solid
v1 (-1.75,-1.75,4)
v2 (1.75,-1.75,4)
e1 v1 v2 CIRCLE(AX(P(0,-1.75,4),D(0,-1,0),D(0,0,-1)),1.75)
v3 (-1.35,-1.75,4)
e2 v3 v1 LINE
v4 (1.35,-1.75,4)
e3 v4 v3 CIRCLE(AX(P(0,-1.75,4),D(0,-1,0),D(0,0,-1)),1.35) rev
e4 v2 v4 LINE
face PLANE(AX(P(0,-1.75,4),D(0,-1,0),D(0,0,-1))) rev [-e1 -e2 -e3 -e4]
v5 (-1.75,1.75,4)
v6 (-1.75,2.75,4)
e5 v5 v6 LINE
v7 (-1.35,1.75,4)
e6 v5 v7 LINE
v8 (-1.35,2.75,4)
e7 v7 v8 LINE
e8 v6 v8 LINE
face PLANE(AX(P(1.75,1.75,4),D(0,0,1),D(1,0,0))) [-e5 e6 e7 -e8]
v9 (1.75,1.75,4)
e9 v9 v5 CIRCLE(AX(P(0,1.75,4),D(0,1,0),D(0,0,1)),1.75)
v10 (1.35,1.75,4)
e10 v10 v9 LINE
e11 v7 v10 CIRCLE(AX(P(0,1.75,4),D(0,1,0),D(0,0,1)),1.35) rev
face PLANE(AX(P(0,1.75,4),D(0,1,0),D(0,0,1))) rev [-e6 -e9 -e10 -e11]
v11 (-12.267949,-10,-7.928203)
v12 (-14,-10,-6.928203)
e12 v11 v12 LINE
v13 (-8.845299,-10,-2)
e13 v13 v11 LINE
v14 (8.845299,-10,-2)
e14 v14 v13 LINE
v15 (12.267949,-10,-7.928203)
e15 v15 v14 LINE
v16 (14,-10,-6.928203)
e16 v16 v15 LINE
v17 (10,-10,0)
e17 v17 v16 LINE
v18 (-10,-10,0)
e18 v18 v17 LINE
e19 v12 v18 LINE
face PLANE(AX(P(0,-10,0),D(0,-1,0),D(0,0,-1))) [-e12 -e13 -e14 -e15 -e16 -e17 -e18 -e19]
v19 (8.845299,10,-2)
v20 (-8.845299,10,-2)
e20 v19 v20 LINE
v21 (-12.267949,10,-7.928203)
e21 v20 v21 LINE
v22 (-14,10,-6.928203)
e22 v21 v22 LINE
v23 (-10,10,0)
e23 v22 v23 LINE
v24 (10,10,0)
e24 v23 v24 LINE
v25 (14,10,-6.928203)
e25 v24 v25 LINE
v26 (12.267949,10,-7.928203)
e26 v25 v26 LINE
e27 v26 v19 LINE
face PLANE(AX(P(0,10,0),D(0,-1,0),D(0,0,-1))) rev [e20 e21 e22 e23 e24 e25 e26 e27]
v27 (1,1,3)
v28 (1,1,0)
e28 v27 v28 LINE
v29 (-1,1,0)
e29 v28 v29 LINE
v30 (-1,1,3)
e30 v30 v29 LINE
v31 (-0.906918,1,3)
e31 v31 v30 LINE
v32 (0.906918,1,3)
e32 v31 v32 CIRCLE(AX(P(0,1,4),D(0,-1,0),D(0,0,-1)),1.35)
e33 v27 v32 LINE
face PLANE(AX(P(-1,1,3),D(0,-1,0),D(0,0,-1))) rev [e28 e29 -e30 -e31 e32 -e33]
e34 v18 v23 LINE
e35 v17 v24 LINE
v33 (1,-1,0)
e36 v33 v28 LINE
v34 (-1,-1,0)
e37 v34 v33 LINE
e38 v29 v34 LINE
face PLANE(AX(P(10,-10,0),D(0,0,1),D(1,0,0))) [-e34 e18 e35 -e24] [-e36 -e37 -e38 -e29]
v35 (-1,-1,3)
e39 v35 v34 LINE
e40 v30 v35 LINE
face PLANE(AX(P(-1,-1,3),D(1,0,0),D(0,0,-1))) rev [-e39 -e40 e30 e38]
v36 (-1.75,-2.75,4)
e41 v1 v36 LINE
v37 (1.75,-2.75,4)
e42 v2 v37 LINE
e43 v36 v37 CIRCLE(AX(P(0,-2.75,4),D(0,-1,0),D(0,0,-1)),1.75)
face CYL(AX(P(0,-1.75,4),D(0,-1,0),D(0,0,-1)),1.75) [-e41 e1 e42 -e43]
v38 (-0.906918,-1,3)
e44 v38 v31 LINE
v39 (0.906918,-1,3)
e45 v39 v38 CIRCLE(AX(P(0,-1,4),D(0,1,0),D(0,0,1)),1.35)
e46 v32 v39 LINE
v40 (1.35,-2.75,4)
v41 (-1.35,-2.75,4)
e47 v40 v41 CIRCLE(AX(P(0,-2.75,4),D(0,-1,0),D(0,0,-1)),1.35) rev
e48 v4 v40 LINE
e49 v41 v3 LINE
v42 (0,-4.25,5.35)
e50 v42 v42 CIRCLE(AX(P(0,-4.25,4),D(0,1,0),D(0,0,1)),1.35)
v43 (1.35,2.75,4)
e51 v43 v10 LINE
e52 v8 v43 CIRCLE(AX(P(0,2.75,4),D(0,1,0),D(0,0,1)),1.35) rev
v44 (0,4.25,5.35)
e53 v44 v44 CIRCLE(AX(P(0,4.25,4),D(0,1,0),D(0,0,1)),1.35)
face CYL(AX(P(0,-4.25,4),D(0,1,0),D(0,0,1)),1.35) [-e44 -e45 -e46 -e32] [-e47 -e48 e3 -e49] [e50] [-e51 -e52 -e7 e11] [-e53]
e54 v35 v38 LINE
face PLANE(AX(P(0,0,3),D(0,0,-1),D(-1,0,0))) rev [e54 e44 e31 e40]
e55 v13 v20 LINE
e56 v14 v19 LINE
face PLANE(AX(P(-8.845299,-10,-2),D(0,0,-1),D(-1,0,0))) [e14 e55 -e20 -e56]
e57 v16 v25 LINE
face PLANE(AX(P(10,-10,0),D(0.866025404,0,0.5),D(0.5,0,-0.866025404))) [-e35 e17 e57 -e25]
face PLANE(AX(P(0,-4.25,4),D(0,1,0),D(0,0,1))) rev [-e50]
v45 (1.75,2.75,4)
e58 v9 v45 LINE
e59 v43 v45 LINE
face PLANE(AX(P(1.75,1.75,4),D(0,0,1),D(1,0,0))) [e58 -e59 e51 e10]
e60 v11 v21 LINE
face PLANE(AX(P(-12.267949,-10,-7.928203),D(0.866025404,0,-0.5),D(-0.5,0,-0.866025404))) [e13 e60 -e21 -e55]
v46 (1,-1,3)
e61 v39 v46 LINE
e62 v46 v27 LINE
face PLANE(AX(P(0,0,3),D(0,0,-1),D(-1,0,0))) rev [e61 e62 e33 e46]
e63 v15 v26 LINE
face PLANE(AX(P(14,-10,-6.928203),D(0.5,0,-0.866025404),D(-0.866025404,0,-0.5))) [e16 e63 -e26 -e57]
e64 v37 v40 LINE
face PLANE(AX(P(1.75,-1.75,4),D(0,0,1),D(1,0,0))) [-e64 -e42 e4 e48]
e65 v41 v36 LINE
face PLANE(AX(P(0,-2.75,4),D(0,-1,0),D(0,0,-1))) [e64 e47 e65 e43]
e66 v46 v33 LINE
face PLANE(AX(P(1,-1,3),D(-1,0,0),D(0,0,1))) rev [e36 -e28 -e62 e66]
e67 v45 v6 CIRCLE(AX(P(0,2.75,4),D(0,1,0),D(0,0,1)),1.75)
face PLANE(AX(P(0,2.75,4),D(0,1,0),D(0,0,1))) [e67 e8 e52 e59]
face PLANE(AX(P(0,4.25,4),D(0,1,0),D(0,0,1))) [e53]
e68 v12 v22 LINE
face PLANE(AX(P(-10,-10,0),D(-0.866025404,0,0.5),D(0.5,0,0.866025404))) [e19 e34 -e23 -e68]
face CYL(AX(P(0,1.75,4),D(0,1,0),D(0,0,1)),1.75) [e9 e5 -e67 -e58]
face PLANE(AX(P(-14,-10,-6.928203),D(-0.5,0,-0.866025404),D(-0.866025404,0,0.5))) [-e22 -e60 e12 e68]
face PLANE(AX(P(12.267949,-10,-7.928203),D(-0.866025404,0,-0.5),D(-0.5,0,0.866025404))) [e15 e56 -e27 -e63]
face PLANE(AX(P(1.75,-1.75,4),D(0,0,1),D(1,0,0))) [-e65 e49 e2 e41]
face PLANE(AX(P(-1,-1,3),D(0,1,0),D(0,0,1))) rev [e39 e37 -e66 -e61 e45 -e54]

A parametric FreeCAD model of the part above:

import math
import FreeCAD as App
import Part
import Sketcher

V = App.Vector
Q = App.Units.Quantity

doc = App.newDocument("Part")
params = doc.addObject("Spreadsheet::Sheet", "Params")
for row, (alias, value) in enumerate([
    ("sketch1_width", "2 mm"),
    ("pad1_length", "3 mm"),
    ("sketch2_diameter", "2.7 mm"),
    ("pad2_length", "3.25 mm"),
    ("pad2_length2", "5.25 mm"),
    ("sketch3_radius", "1.75 mm"),
    ("pad3_length", "1 mm"),
    ("sketch4_radius", "1.75 mm"),
    ("pad4_length", "1 mm"),
    ("sketch5_width", "20 mm"),
    ("sketch5_length", "8 mm"),
    ("sketch5_length2", "2 mm"),
    ("pad5_length", "10 mm"),
    ("pad5_length2", "10 mm"),
], start=1):
    params.set(f"A{row}", alias)
    params.set(f"B{row}", "=" + value)
    params.setAlias(f"B{row}", alias)

body = doc.addObject("PartDesign::Body", "Body")

# Sketch on XY plane
sketch1 = body.newObject("Sketcher::SketchObject", "Sketch")
sketch1.AttachmentSupport = (doc.getObject("XY_Plane"), [""])
sketch1.MapMode = "FlatFace"
sketch1.addGeometry(Part.LineSegment(V(-1, 1, 0), V(-1, -1, 0)), False)
sketch1.addGeometry(Part.LineSegment(V(-1, -1, 0), V(1, -1, 0)), False)
sketch1.addGeometry(Part.LineSegment(V(1, -1, 0), V(1, 1, 0)), False)
sketch1.addGeometry(Part.LineSegment(V(1, 1, 0), V(-1, 1, 0)), False)
sketch1.addConstraint(Sketcher.Constraint("Coincident", 0, 2, 1, 1))
sketch1.addConstraint(Sketcher.Constraint("Coincident", 1, 2, 2, 1))
sketch1.addConstraint(Sketcher.Constraint("Coincident", 2, 2, 3, 1))
sketch1.addConstraint(Sketcher.Constraint("Coincident", 3, 2, 0, 1))
sketch1.addConstraint(Sketcher.Constraint("Vertical", 0))
sketch1.addConstraint(Sketcher.Constraint("Horizontal", 1))
sketch1.addConstraint(Sketcher.Constraint("Vertical", 2))
sketch1.addConstraint(Sketcher.Constraint("Horizontal", 3))
sketch1.addConstraint(Sketcher.Constraint("Symmetric", 0, 2, 2, 2, -1, 1))
sketch1.addConstraint(Sketcher.Constraint("Equal", 3, 0))
sketch1.addConstraint(Sketcher.Constraint("DistanceX", 1, 1, 1, 2, Q("2 mm")))
sketch1.setExpression("Constraints[10]", "Params.sketch1_width")
pad1 = body.newObject("PartDesign::Pad", "Pad")
pad1.Profile = sketch1
pad1.setExpression("Length", "Params.pad1_length")

# Sketch on XZ plane
sketch2 = body.newObject("Sketcher::SketchObject", "Sketch001")
sketch2.AttachmentSupport = (doc.getObject("XZ_Plane"), [""])
sketch2.MapMode = "FlatFace"
sketch2.AttachmentOffset = App.Placement(V(0, 0, -1), App.Rotation())
sketch2.addGeometry(Part.Circle(V(0, 4, 0), V(0, 0, 1), 1.4), False)
sketch2.addConstraint(Sketcher.Constraint("PointOnObject", 0, 3, -2))
sketch2.addConstraint(Sketcher.Constraint("Diameter", 0, Q("2.7 mm")))
sketch2.addConstraint(Sketcher.Constraint("DistanceY", -1, 1, 0, 3, Q("4 mm")))
sketch2.setExpression("Constraints[1]", "Params.sketch2_diameter")
pad2 = body.newObject("PartDesign::Pad", "Pad001")
pad2.Profile = sketch2
pad2.Type = "TwoLengths"
pad2.setExpression("Length", "Params.pad2_length")
pad2.setExpression("Length2", "Params.pad2_length2")
pad2.Reversed = True

# Sketch on XZ plane
sketch3 = body.newObject("Sketcher::SketchObject", "Sketch002")
sketch3.AttachmentSupport = (doc.getObject("XZ_Plane"), [""])
sketch3.MapMode = "FlatFace"
sketch3.AttachmentOffset = App.Placement(V(0, 0, 2.75), App.Rotation())
sketch3.addGeometry(Part.LineSegment(V(1.8, 4, 0), V(-1.8, 4, 0)), False)
sketch3.addGeometry(Part.ArcOfCircle(Part.Circle(V(0, 4, 0), V(0, 0, 1), 1.8), math.radians(180), math.radians(360)), False)
sketch3.addConstraint(Sketcher.Constraint("Coincident", 0, 1, 1, 2))
sketch3.addConstraint(Sketcher.Constraint("Coincident", 1, 1, 0, 2))
sketch3.addConstraint(Sketcher.Constraint("Horizontal", 0))
sketch3.addConstraint(Sketcher.Constraint("PointOnObject", 1, 3, -2))
sketch3.addConstraint(Sketcher.Constraint("Horizontal", 1, 3, 0, 1))
sketch3.addConstraint(Sketcher.Constraint("Radius", 1, Q("1.75 mm")))
sketch3.addConstraint(Sketcher.Constraint("DistanceY", -1, 1, 1, 3, Q("4 mm")))
sketch3.setExpression("Constraints[5]", "Params.sketch3_radius")
pad3 = body.newObject("PartDesign::Pad", "Pad002")
pad3.Profile = sketch3
pad3.setExpression("Length", "Params.pad3_length")
pad3.Reversed = True

# Sketch on XZ plane
sketch4 = body.newObject("Sketcher::SketchObject", "Sketch003")
sketch4.AttachmentSupport = (doc.getObject("XZ_Plane"), [""])
sketch4.MapMode = "FlatFace"
sketch4.AttachmentOffset = App.Placement(V(0, 0, -1.75), App.Rotation())
sketch4.addGeometry(Part.LineSegment(V(-1.8, 4, 0), V(1.8, 4, 0)), False)
sketch4.addGeometry(Part.ArcOfCircle(Part.Circle(V(0, 4, 0), V(0, 0, 1), 1.8), math.radians(180), math.radians(360)), False)
sketch4.addConstraint(Sketcher.Constraint("Coincident", 0, 1, 1, 1))
sketch4.addConstraint(Sketcher.Constraint("Coincident", 1, 2, 0, 2))
sketch4.addConstraint(Sketcher.Constraint("Horizontal", 0))
sketch4.addConstraint(Sketcher.Constraint("PointOnObject", 1, 3, -2))
sketch4.addConstraint(Sketcher.Constraint("Horizontal", 1, 3, 0, 1))
sketch4.addConstraint(Sketcher.Constraint("Radius", 1, Q("1.75 mm")))
sketch4.addConstraint(Sketcher.Constraint("DistanceY", -1, 1, 1, 3, Q("4 mm")))
sketch4.setExpression("Constraints[5]", "Params.sketch4_radius")
pad4 = body.newObject("PartDesign::Pad", "Pad003")
pad4.Profile = sketch4
pad4.setExpression("Length", "Params.pad4_length")
pad4.Reversed = True

# Sketch on XZ plane
sketch5 = body.newObject("Sketcher::SketchObject", "Sketch004")
sketch5.AttachmentSupport = (doc.getObject("XZ_Plane"), [""])
sketch5.MapMode = "FlatFace"
sketch5.addGeometry(Part.LineSegment(V(-10, 0, 0), V(10, 0, 0)), False)
sketch5.addGeometry(Part.LineSegment(V(10, 0, 0), V(14, -6.9, 0)), False)
sketch5.addGeometry(Part.LineSegment(V(14, -6.9, 0), V(12.3, -7.9, 0)), False)
sketch5.addGeometry(Part.LineSegment(V(12.3, -7.9, 0), V(8.8, -2, 0)), False)
sketch5.addGeometry(Part.LineSegment(V(8.8, -2, 0), V(-8.8, -2, 0)), False)
sketch5.addGeometry(Part.LineSegment(V(-8.8, -2, 0), V(-12.3, -7.9, 0)), False)
sketch5.addGeometry(Part.LineSegment(V(-12.3, -7.9, 0), V(-14, -6.9, 0)), False)
sketch5.addGeometry(Part.LineSegment(V(-14, -6.9, 0), V(-10, 0, 0)), False)
sketch5.addConstraint(Sketcher.Constraint("Coincident", 0, 2, 1, 1))
sketch5.addConstraint(Sketcher.Constraint("Coincident", 1, 2, 2, 1))
sketch5.addConstraint(Sketcher.Constraint("Coincident", 2, 2, 3, 1))
sketch5.addConstraint(Sketcher.Constraint("Coincident", 3, 2, 4, 1))
sketch5.addConstraint(Sketcher.Constraint("Coincident", 4, 2, 5, 1))
sketch5.addConstraint(Sketcher.Constraint("Coincident", 5, 2, 6, 1))
sketch5.addConstraint(Sketcher.Constraint("Coincident", 6, 2, 7, 1))
sketch5.addConstraint(Sketcher.Constraint("Coincident", 7, 2, 0, 1))
sketch5.addConstraint(Sketcher.Constraint("Horizontal", 0))
sketch5.addConstraint(Sketcher.Constraint("Horizontal", 4))
sketch5.addConstraint(Sketcher.Constraint("Symmetric", 0, 2, 7, 2, -1, 1))
sketch5.addConstraint(Sketcher.Constraint("Symmetric", 2, 2, 5, 2, -2))
sketch5.addConstraint(Sketcher.Constraint("Symmetric", 1, 2, 6, 2, -2))
sketch5.addConstraint(Sketcher.Constraint("Perpendicular", 1, 2))
sketch5.addConstraint(Sketcher.Constraint("Perpendicular", 2, 3))
sketch5.addConstraint(Sketcher.Constraint("Perpendicular", 5, 6))
sketch5.addConstraint(Sketcher.Constraint("DistanceX", 0, 1, 0, 2, Q("20 mm")))
sketch5.addConstraint(Sketcher.Constraint("Angle", 1, Q("-60 deg")))
sketch5.addConstraint(Sketcher.Constraint("Distance", 1, Q("8 mm")))
sketch5.addConstraint(Sketcher.Constraint("Distance", 2, Q("2 mm")))
sketch5.addConstraint(Sketcher.Constraint("DistanceY", 3, 2, -1, 1, Q("2 mm")))
sketch5.setExpression("Constraints[16]", "Params.sketch5_width")
sketch5.setExpression("Constraints[18]", "Params.sketch5_length")
sketch5.setExpression("Constraints[19]", "Params.sketch5_length2")
pad5 = body.newObject("PartDesign::Pad", "Pad004")
pad5.Profile = sketch5
pad5.Type = "TwoLengths"
pad5.setExpression("Length", "Params.pad5_length")
pad5.setExpression("Length2", "Params.pad5_length2")
pad5.Reversed = True

doc.recompute()
